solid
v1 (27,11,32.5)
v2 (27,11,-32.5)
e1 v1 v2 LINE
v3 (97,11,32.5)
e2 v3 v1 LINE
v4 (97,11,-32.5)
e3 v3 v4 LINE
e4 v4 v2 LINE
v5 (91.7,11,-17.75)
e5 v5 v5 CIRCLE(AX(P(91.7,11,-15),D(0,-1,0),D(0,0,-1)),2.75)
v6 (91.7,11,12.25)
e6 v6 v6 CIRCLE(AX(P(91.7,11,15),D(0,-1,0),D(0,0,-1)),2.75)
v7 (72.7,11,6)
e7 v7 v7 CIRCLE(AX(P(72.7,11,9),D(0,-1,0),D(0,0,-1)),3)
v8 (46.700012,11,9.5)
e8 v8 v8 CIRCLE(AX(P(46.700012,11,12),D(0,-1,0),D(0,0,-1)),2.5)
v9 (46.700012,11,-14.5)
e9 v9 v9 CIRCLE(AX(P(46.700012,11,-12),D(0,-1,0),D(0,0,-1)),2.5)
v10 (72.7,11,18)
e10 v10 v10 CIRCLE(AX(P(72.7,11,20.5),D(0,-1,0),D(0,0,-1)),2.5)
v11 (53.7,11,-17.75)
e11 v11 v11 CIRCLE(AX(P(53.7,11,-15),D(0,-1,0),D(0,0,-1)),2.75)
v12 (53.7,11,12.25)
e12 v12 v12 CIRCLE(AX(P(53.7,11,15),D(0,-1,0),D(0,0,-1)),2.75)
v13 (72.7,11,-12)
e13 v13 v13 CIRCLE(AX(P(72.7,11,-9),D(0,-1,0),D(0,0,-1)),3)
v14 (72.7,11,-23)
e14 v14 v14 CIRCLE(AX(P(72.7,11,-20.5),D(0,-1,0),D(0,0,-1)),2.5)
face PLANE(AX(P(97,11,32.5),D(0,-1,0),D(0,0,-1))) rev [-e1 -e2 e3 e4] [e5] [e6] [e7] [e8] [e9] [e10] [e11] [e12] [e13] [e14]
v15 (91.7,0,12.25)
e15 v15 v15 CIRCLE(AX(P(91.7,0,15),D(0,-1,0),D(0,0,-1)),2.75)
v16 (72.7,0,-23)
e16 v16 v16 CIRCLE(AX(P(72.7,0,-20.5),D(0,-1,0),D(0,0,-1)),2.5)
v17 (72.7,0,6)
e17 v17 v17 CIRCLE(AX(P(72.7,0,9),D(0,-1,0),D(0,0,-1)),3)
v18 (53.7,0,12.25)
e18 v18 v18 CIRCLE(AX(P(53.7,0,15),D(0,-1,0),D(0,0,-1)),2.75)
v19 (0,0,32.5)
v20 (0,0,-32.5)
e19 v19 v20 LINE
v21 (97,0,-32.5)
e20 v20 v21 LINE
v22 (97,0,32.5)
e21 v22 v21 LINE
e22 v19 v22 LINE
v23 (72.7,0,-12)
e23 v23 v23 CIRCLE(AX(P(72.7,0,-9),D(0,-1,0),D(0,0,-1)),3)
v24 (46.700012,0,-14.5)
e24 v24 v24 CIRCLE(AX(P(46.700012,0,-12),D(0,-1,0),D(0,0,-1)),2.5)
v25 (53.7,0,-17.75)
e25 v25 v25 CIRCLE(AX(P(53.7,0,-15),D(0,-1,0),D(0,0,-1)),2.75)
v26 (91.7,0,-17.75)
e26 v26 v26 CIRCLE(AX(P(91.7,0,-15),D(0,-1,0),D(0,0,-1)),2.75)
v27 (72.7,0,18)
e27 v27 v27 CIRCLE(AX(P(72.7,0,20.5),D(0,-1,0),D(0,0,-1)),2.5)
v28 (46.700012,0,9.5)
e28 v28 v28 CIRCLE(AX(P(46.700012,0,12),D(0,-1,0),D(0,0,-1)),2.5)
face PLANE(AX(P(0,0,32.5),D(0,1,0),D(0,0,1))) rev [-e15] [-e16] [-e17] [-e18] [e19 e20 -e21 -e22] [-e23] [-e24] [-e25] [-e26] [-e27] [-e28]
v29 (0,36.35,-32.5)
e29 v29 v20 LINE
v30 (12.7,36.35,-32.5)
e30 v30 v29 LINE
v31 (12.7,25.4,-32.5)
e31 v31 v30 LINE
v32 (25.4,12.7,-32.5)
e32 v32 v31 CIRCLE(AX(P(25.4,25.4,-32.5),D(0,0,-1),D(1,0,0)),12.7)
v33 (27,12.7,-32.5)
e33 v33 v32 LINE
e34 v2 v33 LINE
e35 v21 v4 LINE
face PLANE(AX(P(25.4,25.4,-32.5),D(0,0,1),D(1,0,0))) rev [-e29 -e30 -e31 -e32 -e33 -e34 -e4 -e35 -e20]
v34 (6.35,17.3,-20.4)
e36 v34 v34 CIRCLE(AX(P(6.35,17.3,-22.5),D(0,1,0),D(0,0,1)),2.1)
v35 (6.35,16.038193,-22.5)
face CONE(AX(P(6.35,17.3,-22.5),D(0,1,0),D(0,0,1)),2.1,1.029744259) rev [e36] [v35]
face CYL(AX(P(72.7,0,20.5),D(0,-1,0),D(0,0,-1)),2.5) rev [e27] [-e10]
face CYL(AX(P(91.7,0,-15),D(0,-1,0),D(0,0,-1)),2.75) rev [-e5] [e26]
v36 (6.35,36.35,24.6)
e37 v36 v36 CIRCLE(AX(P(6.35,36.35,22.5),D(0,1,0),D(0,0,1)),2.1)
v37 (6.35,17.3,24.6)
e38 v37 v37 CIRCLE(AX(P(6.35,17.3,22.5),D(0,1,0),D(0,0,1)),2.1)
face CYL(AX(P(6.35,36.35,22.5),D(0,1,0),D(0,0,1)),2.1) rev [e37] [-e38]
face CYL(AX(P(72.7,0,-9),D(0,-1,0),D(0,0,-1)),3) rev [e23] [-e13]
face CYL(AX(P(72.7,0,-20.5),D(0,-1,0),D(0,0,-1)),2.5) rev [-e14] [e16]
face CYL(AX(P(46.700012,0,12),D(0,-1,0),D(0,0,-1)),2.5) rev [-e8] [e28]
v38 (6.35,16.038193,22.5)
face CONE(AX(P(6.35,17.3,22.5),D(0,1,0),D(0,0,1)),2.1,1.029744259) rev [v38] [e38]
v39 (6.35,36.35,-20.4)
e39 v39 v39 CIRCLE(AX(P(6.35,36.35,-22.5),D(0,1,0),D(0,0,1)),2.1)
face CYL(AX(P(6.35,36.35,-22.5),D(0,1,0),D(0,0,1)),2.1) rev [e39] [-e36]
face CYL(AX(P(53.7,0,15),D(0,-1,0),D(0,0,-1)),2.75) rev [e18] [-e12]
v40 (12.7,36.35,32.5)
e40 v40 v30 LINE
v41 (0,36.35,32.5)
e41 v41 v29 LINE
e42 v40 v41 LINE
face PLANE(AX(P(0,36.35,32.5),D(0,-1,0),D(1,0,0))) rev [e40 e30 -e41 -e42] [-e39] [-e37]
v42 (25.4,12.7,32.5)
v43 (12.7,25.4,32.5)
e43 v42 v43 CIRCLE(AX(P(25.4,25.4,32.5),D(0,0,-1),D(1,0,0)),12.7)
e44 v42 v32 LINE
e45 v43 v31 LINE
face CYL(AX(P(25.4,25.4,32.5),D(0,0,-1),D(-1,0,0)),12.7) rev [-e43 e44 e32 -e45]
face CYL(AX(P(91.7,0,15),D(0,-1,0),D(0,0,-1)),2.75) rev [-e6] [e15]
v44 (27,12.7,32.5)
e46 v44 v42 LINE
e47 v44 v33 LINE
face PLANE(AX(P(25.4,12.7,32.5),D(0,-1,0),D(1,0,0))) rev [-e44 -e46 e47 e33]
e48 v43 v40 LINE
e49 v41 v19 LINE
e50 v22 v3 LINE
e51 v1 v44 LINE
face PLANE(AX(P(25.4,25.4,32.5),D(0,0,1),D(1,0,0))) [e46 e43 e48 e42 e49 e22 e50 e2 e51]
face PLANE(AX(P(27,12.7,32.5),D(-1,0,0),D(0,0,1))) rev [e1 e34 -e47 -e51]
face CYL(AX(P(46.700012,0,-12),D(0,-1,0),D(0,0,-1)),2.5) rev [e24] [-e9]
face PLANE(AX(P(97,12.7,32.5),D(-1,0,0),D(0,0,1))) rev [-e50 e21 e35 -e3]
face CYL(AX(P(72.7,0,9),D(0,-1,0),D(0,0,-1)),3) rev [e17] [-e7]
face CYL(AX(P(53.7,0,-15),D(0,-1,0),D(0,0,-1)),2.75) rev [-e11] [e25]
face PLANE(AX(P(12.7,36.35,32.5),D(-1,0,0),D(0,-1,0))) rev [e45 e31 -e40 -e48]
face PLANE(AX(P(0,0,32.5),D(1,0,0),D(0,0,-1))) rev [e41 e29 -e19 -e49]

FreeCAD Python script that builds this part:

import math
import FreeCAD as App
import Part
import Sketcher
Q = App.Units.Quantity

doc = App.newDocument("Part")
params = doc.addObject("Spreadsheet::Sheet", "Params")
for row, (alias, value) in enumerate([
    ("sketch1_radius", "12.7 mm"),
    ("sketch1_width", "97 mm"),
    ("sketch1_width2", "71.6 mm"),
    ("sketch1_height", "10.95 mm"),
    ("pad1_length", "65 mm"),
    ("sketch2_width", "70 mm"),
    ("sketch2_height", "1.7 mm"),
    ("sketch3_diameter", "5.5 mm"),
    ("hole_diameter", "5.5 mm"),
    ("sketch4_diameter", "4.2 mm"),
    ("hole2_diameter", "4.2 mm"),
    ("hole2_depth", "19.05 mm"),
    ("sketch5_diameter", "5 mm"),
    ("hole3_diameter", "5 mm"),
    ("sketch6_diameter", "5 mm"),
    ("hole4_diameter", "5 mm"),
    ("sketch7_diameter", "6 mm"),
    ("hole5_diameter", "6 mm"),
], start=1):
    params.set(f"A{row}", alias)
    params.set(f"B{row}", "=" + value)
    params.setAlias(f"B{row}", alias)

body = doc.addObject("PartDesign::Body", "Body")

# Sketch on XY plane
sketch1 = body.newObject("Sketcher::SketchObject", "Sketch")
sketch1.AttachmentSupport = (doc.getObject("XY_Plane"), [""])
sketch1.MapMode = "FlatFace"
sketch1.addGeometry(Part.LineSegment(App.Vector(0, 0, 0), App.Vector(97, 0, 0)), False)
sketch1.addGeometry(Part.LineSegment(App.Vector(97, 0, 0), App.Vector(97, 12.7, 0)), False)
sketch1.addGeometry(Part.LineSegment(App.Vector(97, 12.7, 0), App.Vector(25.4, 12.7, 0)), False)
sketch1.addGeometry(Part.ArcOfCircle(Part.Circle(App.Vector(25.4, 25.4, 0), App.Vector(0, 0, 1), 12.7), math.radians(180), math.radians(270)), False)
sketch1.addGeometry(Part.LineSegment(App.Vector(12.7, 25.4, 0), App.Vector(12.7, 36.35, 0)), False)
sketch1.addGeometry(Part.LineSegment(App.Vector(12.7, 36.35, 0), App.Vector(0, 36.35, 0)), False)
sketch1.addGeometry(Part.LineSegment(App.Vector(0, 36.35, 0), App.Vector(0, 0, 0)), False)
sketch1.addConstraint(Sketcher.Constraint("Coincident", 0, 2, 1, 1))
sketch1.addConstraint(Sketcher.Constraint("Coincident", 1, 2, 2, 1))
sketch1.addConstraint(Sketcher.Constraint("Tangent", 2, 2, 3, 2))
sketch1.addConstraint(Sketcher.Constraint("Tangent", 3, 1, 4, 1))
sketch1.addConstraint(Sketcher.Constraint("Coincident", 4, 2, 5, 1))
sketch1.addConstraint(Sketcher.Constraint("Coincident", 5, 2, 6, 1))
sketch1.addConstraint(Sketcher.Constraint("Coincident", 6, 2, 0, 1))
sketch1.addConstraint(Sketcher.Constraint("Horizontal", 0))
sketch1.addConstraint(Sketcher.Constraint("Vertical", 1))
sketch1.addConstraint(Sketcher.Constraint("Horizontal", 2))
sketch1.addConstraint(Sketcher.Constraint("Vertical", 4))
sketch1.addConstraint(Sketcher.Constraint("Horizontal", 5))
sketch1.addConstraint(Sketcher.Constraint("Vertical", 6))
sketch1.addConstraint(Sketcher.Constraint("Coincident", 6, 2, -1, 1))
sketch1.addConstraint(Sketcher.Constraint("Equal", 5, 1))
sketch1.addConstraint(Sketcher.Constraint("Radius", 3, Q("12.7 mm")))
sketch1.addConstraint(Sketcher.Constraint("DistanceX", 0, 1, 0, 2, Q("97 mm")))
sketch1.addConstraint(Sketcher.Constraint("DistanceX", 2, 2, 2, 1, Q("71.6 mm")))
sketch1.addConstraint(Sketcher.Constraint("DistanceY", 4, 1, 4, 2, Q("10.95 mm")))
sketch1.setExpression("Constraints[15]", "Params.sketch1_radius")
sketch1.setExpression("Constraints[16]", "Params.sketch1_width")
sketch1.setExpression("Constraints[17]", "Params.sketch1_width2")
sketch1.setExpression("Constraints[18]", "Params.sketch1_height")
pad1 = body.newObject("PartDesign::Pad", "Pad")
pad1.Profile = sketch1
pad1.setExpression("Length", "Params.pad1_length")
pad1.Midplane = True

# Sketch on XY plane
sketch2 = body.newObject("Sketcher::SketchObject", "Sketch001")
sketch2.AttachmentSupport = (doc.getObject("XY_Plane"), [""])
sketch2.MapMode = "FlatFace"
sketch2.AttachmentOffset = App.Placement(App.Vector(0, 0, -32.5), App.Rotation())
sketch2.addGeometry(Part.LineSegment(App.Vector(97, 12.7, 0), App.Vector(97, 11, 0)), False)
sketch2.addGeometry(Part.LineSegment(App.Vector(97, 11, 0), App.Vector(27, 11, 0)), False)
sketch2.addGeometry(Part.LineSegment(App.Vector(27, 11, 0), App.Vector(27, 12.7, 0)), False)
sketch2.addGeometry(Part.LineSegment(App.Vector(27, 12.7, 0), App.Vector(97, 12.7, 0)), False)
sketch2.addConstraint(Sketcher.Constraint("Coincident", 0, 2, 1, 1))
sketch2.addConstraint(Sketcher.Constraint("Coincident", 1, 2, 2, 1))
sketch2.addConstraint(Sketcher.Constraint("Coincident", 2, 2, 3, 1))
sketch2.addConstraint(Sketcher.Constraint("Coincident", 3, 2, 0, 1))
sketch2.addConstraint(Sketcher.Constraint("Vertical", 0))
sketch2.addConstraint(Sketcher.Constraint("Horizontal", 1))
sketch2.addConstraint(Sketcher.Constraint("Vertical", 2))
sketch2.addConstraint(Sketcher.Constraint("Horizontal", 3))
sketch2.addConstraint(Sketcher.Constraint("DistanceX", 1, 2, 1, 1, Q("70 mm")))
sketch2.addConstraint(Sketcher.Constraint("DistanceY", 0, 2, 0, 1, Q("1.7 mm")))
sketch2.addConstraint(Sketcher.Constraint("DistanceX", -1, 1, 0, 2, Q("97 mm")))
sketch2.addConstraint(Sketcher.Constraint("DistanceY", -1, 1, 0, 2, Q("11 mm")))
sketch2.setExpression("Constraints[8]", "Params.sketch2_width")
sketch2.setExpression("Constraints[9]", "Params.sketch2_height")
pocket1 = body.newObject("PartDesign::Pocket", "Pocket")
pocket1.Profile = sketch2
pocket1.Type = "ThroughAll"
pocket1.Reversed = True

# Sketch on XZ plane
sketch3 = body.newObject("Sketcher::SketchObject", "Sketch002")
sketch3.AttachmentSupport = (doc.getObject("XZ_Plane"), [""])
sketch3.MapMode = "FlatFace"
sketch3.addGeometry(Part.Circle(App.Vector(53.7, 15, 0), App.Vector(0, 0, 1), 2.75), False)
sketch3.addGeometry(Part.Circle(App.Vector(91.7, 15, 0), App.Vector(0, 0, 1), 2.75), False)
sketch3.addGeometry(Part.Circle(App.Vector(91.7, -15, 0), App.Vector(0, 0, 1), 2.75), False)
sketch3.addGeometry(Part.Circle(App.Vector(53.7, -15, 0), App.Vector(0, 0, 1), 2.75), False)
sketch3.addConstraint(Sketcher.Constraint("Equal", 0, 1))
sketch3.addConstraint(Sketcher.Constraint("Equal", 1, 2))
sketch3.addConstraint(Sketcher.Constraint("Equal", 2, 3))
sketch3.addConstraint(Sketcher.Constraint("Symmetric", 1, 3, 2, 3, -1))
sketch3.addConstraint(Sketcher.Constraint("Symmetric", 0, 3, 3, 3, -1))
sketch3.addConstraint(Sketcher.Constraint("Horizontal", 0, 3, 1, 3))
sketch3.addConstraint(Sketcher.Constraint("Diameter", 0, Q("5.5 mm")))
sketch3.addConstraint(Sketcher.Constraint("DistanceY", -1, 1, 0, 3, Q("15 mm")))
sketch3.addConstraint(Sketcher.Constraint("DistanceX", 0, 3, 1, 3, Q("38 mm")))
sketch3.addConstraint(Sketcher.Constraint("DistanceX", -1, 1, 0, 3, Q("53.7 mm")))
sketch3.setExpression("Constraints[6]", "Params.sketch3_diameter")
doc.recompute()
hole = body.newObject("PartDesign::Hole", "Hole")
hole.Profile = sketch3
hole.ThreadType = "None"
hole.setExpression("Diameter", "Params.hole_diameter")
hole.DepthType = "ThroughAll"

# Sketch on XZ plane
sketch4 = body.newObject("Sketcher::SketchObject", "Sketch003")
sketch4.AttachmentSupport = (doc.getObject("XZ_Plane"), [""])
sketch4.MapMode = "FlatFace"
sketch4.AttachmentOffset = App.Placement(App.Vector(0, 0, -36.35), App.Rotation())
sketch4.addGeometry(Part.Circle(App.Vector(6.35, 22.5, 0), App.Vector(0, 0, 1), 2.1), False)
sketch4.addGeometry(Part.Circle(App.Vector(6.35, -22.5, 0), App.Vector(0, 0, 1), 2.1), False)
sketch4.addConstraint(Sketcher.Constraint("Equal", 0, 1))
sketch4.addConstraint(Sketcher.Constraint("Symmetric", 0, 3, 1, 3, -1))
sketch4.addConstraint(Sketcher.Constraint("Diameter", 0, Q("4.2 mm")))
sketch4.addConstraint(Sketcher.Constraint("DistanceY", 1, 3, 0, 3, Q("45 mm")))
sketch4.addConstraint(Sketcher.Constraint("DistanceX", -1, 1, 0, 3, Q("6.35 mm")))
sketch4.setExpression("Constraints[2]", "Params.sketch4_diameter")
doc.recompute()
hole2 = body.newObject("PartDesign::Hole", "Hole001")
hole2.Profile = sketch4
hole2.ThreadType = "None"
hole2.setExpression("Diameter", "Params.hole2_diameter")
hole2.DepthType = "Dimension"
hole2.setExpression("Depth", "Params.hole2_depth")
hole2.DrillPoint = "Angled"
hole2.DrillPointAngle = 118
hole2.Reversed = True

# Sketch on XZ plane
sketch5 = body.newObject("Sketcher::SketchObject", "Sketch004")
sketch5.AttachmentSupport = (doc.getObject("XZ_Plane"), [""])
sketch5.MapMode = "FlatFace"
sketch5.addGeometry(Part.Circle(App.Vector(46.700012, 12, 0), App.Vector(0, 0, 1), 2.5), False)
sketch5.addGeometry(Part.Circle(App.Vector(46.700012, -12, 0), App.Vector(0, 0, 1), 2.5), False)
sketch5.addConstraint(Sketcher.Constraint("Equal", 0, 1))
sketch5.addConstraint(Sketcher.Constraint("Symmetric", 0, 3, 1, 3, -1))
sketch5.addConstraint(Sketcher.Constraint("Diameter", 0, Q("5 mm")))
sketch5.addConstraint(Sketcher.Constraint("DistanceY", -1, 1, 0, 3, Q("12 mm")))
sketch5.addConstraint(Sketcher.Constraint("DistanceX", -1, 1, 0, 3, Q("46.700012 mm")))
sketch5.setExpression("Constraints[2]", "Params.sketch5_diameter")
doc.recompute()
hole3 = body.newObject("PartDesign::Hole", "Hole002")
hole3.Profile = sketch5
hole3.ThreadType = "None"
hole3.setExpression("Diameter", "Params.hole3_diameter")
hole3.DepthType = "ThroughAll"

# Sketch on XZ plane
sketch6 = body.newObject("Sketcher::SketchObject", "Sketch005")
sketch6.AttachmentSupport = (doc.getObject("XZ_Plane"), [""])
sketch6.MapMode = "FlatFace"
sketch6.addGeometry(Part.Circle(App.Vector(72.7, 20.5, 0), App.Vector(0, 0, 1), 2.5), False)
sketch6.addGeometry(Part.Circle(App.Vector(72.7, -20.5, 0), App.Vector(0, 0, 1), 2.5), False)
sketch6.addConstraint(Sketcher.Constraint("Equal", 0, 1))
sketch6.addConstraint(Sketcher.Constraint("Symmetric", 0, 3, 1, 3, -1))
sketch6.addConstraint(Sketcher.Constraint("Diameter", 0, Q("5 mm")))
sketch6.addConstraint(Sketcher.Constraint("DistanceY", 1, 3, 0, 3, Q("41 mm")))
sketch6.addConstraint(Sketcher.Constraint("DistanceX", -1, 1, 0, 3, Q("72.7 mm")))
sketch6.setExpression("Constraints[2]", "Params.sketch6_diameter")
doc.recompute()
hole4 = body.newObject("PartDesign::Hole", "Hole003")
hole4.Profile = sketch6
hole4.ThreadType = "None"
hole4.setExpression("Diameter", "Params.hole4_diameter")
hole4.DepthType = "ThroughAll"

# Sketch on XZ plane
sketch7 = body.newObject("Sketcher::SketchObject", "Sketch006")
sketch7.AttachmentSupport = (doc.getObject("XZ_Plane"), [""])
sketch7.MapMode = "FlatFace"
sketch7.addGeometry(Part.Circle(App.Vector(72.7, -9, 0), App.Vector(0, 0, 1), 3), False)
sketch7.addGeometry(Part.Circle(App.Vector(72.7, 9, 0), App.Vector(0, 0, 1), 3), False)
sketch7.addConstraint(Sketcher.Constraint("Equal", 0, 1))
sketch7.addConstraint(Sketcher.Constraint("Symmetric", 0, 3, 1, 3, -1))
sketch7.addConstraint(Sketcher.Constraint("Diameter", 0, Q("6 mm")))
sketch7.addConstraint(Sketcher.Constraint("DistanceY", 0, 3, -1, 1, Q("9 mm")))
sketch7.addConstraint(Sketcher.Constraint("DistanceX", -1, 1, 0, 3, Q("72.7 mm")))
sketch7.setExpression("Constraints[2]", "Params.sketch7_diameter")
doc.recompute()
hole5 = body.newObject("PartDesign::Hole", "Hole004")
hole5.Profile = sketch7
hole5.ThreadType = "None"
hole5.setExpression("Diameter", "Params.hole5_diameter")
hole5.DepthType = "ThroughAll"

doc.recompute()
